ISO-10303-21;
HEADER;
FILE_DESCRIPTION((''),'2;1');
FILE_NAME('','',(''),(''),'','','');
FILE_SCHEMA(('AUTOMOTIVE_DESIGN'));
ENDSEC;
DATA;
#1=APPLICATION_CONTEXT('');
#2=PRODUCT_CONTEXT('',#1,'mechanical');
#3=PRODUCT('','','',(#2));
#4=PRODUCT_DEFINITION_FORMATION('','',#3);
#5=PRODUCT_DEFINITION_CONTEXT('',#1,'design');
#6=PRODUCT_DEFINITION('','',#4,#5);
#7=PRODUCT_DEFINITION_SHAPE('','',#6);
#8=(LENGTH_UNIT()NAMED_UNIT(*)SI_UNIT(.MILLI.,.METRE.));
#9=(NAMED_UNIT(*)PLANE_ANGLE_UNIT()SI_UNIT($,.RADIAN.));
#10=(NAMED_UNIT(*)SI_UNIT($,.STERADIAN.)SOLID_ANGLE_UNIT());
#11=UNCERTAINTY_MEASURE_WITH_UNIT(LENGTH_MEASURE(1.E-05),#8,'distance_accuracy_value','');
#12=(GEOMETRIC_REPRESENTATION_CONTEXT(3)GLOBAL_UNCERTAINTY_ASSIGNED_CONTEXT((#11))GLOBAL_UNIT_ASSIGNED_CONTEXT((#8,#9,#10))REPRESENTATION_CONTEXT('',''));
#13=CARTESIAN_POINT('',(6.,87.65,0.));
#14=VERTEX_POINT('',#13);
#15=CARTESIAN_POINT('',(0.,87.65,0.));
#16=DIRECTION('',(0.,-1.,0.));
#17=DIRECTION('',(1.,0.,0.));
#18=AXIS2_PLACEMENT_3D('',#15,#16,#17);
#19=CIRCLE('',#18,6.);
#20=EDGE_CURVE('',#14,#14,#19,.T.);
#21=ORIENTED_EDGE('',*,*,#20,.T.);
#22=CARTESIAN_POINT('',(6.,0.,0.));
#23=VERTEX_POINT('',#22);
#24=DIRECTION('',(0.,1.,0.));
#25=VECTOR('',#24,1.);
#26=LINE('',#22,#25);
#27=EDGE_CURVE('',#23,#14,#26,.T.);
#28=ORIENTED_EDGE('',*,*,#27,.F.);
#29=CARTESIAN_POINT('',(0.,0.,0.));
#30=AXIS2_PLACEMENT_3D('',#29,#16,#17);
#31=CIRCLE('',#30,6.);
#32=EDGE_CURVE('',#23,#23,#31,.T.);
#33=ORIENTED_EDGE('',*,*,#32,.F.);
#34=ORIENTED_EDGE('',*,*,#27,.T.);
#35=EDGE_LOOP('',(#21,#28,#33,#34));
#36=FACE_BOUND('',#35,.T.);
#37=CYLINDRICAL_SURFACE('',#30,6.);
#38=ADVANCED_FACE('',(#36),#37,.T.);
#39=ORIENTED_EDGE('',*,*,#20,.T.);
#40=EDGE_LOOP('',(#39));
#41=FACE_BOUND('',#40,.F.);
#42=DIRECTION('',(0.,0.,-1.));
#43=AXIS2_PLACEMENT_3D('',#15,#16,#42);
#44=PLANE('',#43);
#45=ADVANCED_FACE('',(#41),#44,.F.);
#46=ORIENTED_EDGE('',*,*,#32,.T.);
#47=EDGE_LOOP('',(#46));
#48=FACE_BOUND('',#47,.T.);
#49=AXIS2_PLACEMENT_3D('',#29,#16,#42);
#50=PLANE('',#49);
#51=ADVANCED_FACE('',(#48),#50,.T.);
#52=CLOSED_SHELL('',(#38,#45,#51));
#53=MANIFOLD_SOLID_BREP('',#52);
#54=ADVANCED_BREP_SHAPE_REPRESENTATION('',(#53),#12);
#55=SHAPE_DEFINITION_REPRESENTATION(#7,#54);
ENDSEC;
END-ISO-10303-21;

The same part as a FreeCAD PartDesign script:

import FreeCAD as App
import Part
import Sketcher
Q = App.Units.Quantity

doc = App.newDocument("Part")
params = doc.addObject("Spreadsheet::Sheet", "Params")
for row, (alias, value) in enumerate([
    ("sketch1_diameter", "12 mm"),
    ("pad1_length", "87.65 mm"),
], start=1):
    params.set(f"A{row}", alias)
    params.set(f"B{row}", "=" + value)
    params.setAlias(f"B{row}", alias)

body = doc.addObject("PartDesign::Body", "Body")

sketch1 = body.newObject("Sketcher::SketchObject", "Sketch")
sketch1.AttachmentSupport = (doc.getObject("XZ_Plane"), [""])
sketch1.MapMode = "FlatFace"
sketch1.addGeometry(Part.Circle(App.Vector(0, 0, 0), App.Vector(0, 0, 1), 6), False)
sketch1.addConstraint([
    Sketcher.Constraint("Coincident", 0, 3, -1, 1),
    Sketcher.Constraint("Diameter", 0, Q("12 mm")),
])
sketch1.setExpression("Constraints[1]", "Params.sketch1_diameter")
pad1 = body.newObject("PartDesign::Pad", "Pad")
pad1.Profile = sketch1
pad1.setExpression("Length", "Params.pad1_length")
pad1.Reversed = True

doc.recompute()
